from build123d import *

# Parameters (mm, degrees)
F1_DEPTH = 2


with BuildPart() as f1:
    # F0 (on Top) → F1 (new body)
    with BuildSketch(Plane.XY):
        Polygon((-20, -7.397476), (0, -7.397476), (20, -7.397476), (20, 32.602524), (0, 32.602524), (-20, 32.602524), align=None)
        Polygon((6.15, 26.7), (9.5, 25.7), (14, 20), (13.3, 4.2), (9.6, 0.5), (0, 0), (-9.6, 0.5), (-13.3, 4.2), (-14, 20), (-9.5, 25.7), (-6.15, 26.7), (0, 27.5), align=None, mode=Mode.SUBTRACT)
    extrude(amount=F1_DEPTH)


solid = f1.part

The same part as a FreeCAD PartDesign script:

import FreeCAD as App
import Part
import Sketcher
from FreeCAD import Vector


def add_polygon(sketch, points):
    """Adds a closed chain of lines whose ends are joined by coincident constraints."""
    first, n = sketch.GeometryCount, len(points)
    for a, b in zip(points, points[1:] + points[:1]):
        sketch.addGeometry(Part.LineSegment(App.Vector(*a, 0), App.Vector(*b, 0)), False)
    for i in range(n):
        sketch.addConstraint(Sketcher.Constraint("Coincident", first + i, 2, first + (i + 1) % n, 1))

doc = App.newDocument("Part")
body = doc.addObject("PartDesign::Body", "Body")

# Sketch on XY plane
sketch1 = body.newObject("Sketcher::SketchObject", "Sketch")
sketch1.AttachmentSupport = (doc.getObject("XY_Plane"), [""])
sketch1.MapMode = "FlatFace"
add_polygon(sketch1, [(-20, -7.4), (20, -7.4), (20, 32.6), (-20, 32.6)])  # lines 0-3
add_polygon(sketch1, [(0, 27.5), (6.2, 26.7), (9.5, 25.7), (14, 20), (13.3, 4.2), (9.6, 0.5), (0, 0), (-9.6, 0.5), (-13.3, 4.2), (-14, 20), (-9.5, 25.7), (-6.2, 26.7)])  # lines 4-15
sketch1.addConstraint(Sketcher.Constraint("Horizontal", 0))
sketch1.addConstraint(Sketcher.Constraint("Vertical", 1))
sketch1.addConstraint(Sketcher.Constraint("Horizontal", 2))
sketch1.addConstraint(Sketcher.Constraint("Vertical", 3))
sketch1.addConstraint(Sketcher.Constraint("Coincident", 9, 2, -1, 1))
sketch1.addConstraint(Sketcher.Constraint("Symmetric", 8, 2, 10, 2, -2))
sketch1.addConstraint(Sketcher.Constraint("Symmetric", 7, 2, 11, 2, -2))
sketch1.addConstraint(Sketcher.Constraint("Symmetric", 6, 2, 12, 2, -2))
sketch1.addConstraint(Sketcher.Constraint("Symmetric", 5, 2, 13, 2, -2))
sketch1.addConstraint(Sketcher.Constraint("Symmetric", 4, 2, 14, 2, -2))
sketch1.addConstraint(Sketcher.Constraint("PointOnObject", 15, 2, -2))
sketch1.addConstraint(Sketcher.Constraint("Perpendicular", 8, 11))
sketch1.addConstraint(Sketcher.Constraint("Equal", 2, 1))
sketch1.addConstraint(Sketcher.Constraint("DistanceX", 0, 1, 0, 2, 40.0))
sketch1.addConstraint(Sketcher.Constraint("DistanceX", -1, 1, 0, 2, 20.0))
sketch1.addConstraint(Sketcher.Constraint("DistanceX", -1, 1, 6, 2, 14.0))
sketch1.addConstraint(Sketcher.Constraint("DistanceY", -1, 1, 6, 2, 20.0))
sketch1.addConstraint(Sketcher.Constraint("DistanceY", 5, 2, 4, 2, 1.0))
sketch1.addConstraint(Sketcher.Constraint("DistanceX", 13, 2, 5, 2, 19.0))
sketch1.addConstraint(Sketcher.Constraint("DistanceY", -1, 1, 4, 2, 26.7))
sketch1.addConstraint(Sketcher.Constraint("DistanceX", -1, 1, 7, 2, 13.3))
sketch1.addConstraint(Sketcher.Constraint("DistanceY", -1, 1, 7, 2, 4.2))
sketch1.addConstraint(Sketcher.Constraint("DistanceX", -1, 1, 8, 2, 9.6))
sketch1.addConstraint(Sketcher.Constraint("DistanceY", -1, 1, 15, 2, 27.5))
sketch1.addConstraint(Sketcher.Constraint("DistanceX", 14, 2, 4, 2, 12.3))
sketch1.addConstraint(Sketcher.Constraint("DistanceY", 0, 2, -1, 1, 7.397476))
pad1 = body.newObject("PartDesign::Pad", "Pad")
pad1.Profile = sketch1
pad1.Length = 2

doc.recompute()
